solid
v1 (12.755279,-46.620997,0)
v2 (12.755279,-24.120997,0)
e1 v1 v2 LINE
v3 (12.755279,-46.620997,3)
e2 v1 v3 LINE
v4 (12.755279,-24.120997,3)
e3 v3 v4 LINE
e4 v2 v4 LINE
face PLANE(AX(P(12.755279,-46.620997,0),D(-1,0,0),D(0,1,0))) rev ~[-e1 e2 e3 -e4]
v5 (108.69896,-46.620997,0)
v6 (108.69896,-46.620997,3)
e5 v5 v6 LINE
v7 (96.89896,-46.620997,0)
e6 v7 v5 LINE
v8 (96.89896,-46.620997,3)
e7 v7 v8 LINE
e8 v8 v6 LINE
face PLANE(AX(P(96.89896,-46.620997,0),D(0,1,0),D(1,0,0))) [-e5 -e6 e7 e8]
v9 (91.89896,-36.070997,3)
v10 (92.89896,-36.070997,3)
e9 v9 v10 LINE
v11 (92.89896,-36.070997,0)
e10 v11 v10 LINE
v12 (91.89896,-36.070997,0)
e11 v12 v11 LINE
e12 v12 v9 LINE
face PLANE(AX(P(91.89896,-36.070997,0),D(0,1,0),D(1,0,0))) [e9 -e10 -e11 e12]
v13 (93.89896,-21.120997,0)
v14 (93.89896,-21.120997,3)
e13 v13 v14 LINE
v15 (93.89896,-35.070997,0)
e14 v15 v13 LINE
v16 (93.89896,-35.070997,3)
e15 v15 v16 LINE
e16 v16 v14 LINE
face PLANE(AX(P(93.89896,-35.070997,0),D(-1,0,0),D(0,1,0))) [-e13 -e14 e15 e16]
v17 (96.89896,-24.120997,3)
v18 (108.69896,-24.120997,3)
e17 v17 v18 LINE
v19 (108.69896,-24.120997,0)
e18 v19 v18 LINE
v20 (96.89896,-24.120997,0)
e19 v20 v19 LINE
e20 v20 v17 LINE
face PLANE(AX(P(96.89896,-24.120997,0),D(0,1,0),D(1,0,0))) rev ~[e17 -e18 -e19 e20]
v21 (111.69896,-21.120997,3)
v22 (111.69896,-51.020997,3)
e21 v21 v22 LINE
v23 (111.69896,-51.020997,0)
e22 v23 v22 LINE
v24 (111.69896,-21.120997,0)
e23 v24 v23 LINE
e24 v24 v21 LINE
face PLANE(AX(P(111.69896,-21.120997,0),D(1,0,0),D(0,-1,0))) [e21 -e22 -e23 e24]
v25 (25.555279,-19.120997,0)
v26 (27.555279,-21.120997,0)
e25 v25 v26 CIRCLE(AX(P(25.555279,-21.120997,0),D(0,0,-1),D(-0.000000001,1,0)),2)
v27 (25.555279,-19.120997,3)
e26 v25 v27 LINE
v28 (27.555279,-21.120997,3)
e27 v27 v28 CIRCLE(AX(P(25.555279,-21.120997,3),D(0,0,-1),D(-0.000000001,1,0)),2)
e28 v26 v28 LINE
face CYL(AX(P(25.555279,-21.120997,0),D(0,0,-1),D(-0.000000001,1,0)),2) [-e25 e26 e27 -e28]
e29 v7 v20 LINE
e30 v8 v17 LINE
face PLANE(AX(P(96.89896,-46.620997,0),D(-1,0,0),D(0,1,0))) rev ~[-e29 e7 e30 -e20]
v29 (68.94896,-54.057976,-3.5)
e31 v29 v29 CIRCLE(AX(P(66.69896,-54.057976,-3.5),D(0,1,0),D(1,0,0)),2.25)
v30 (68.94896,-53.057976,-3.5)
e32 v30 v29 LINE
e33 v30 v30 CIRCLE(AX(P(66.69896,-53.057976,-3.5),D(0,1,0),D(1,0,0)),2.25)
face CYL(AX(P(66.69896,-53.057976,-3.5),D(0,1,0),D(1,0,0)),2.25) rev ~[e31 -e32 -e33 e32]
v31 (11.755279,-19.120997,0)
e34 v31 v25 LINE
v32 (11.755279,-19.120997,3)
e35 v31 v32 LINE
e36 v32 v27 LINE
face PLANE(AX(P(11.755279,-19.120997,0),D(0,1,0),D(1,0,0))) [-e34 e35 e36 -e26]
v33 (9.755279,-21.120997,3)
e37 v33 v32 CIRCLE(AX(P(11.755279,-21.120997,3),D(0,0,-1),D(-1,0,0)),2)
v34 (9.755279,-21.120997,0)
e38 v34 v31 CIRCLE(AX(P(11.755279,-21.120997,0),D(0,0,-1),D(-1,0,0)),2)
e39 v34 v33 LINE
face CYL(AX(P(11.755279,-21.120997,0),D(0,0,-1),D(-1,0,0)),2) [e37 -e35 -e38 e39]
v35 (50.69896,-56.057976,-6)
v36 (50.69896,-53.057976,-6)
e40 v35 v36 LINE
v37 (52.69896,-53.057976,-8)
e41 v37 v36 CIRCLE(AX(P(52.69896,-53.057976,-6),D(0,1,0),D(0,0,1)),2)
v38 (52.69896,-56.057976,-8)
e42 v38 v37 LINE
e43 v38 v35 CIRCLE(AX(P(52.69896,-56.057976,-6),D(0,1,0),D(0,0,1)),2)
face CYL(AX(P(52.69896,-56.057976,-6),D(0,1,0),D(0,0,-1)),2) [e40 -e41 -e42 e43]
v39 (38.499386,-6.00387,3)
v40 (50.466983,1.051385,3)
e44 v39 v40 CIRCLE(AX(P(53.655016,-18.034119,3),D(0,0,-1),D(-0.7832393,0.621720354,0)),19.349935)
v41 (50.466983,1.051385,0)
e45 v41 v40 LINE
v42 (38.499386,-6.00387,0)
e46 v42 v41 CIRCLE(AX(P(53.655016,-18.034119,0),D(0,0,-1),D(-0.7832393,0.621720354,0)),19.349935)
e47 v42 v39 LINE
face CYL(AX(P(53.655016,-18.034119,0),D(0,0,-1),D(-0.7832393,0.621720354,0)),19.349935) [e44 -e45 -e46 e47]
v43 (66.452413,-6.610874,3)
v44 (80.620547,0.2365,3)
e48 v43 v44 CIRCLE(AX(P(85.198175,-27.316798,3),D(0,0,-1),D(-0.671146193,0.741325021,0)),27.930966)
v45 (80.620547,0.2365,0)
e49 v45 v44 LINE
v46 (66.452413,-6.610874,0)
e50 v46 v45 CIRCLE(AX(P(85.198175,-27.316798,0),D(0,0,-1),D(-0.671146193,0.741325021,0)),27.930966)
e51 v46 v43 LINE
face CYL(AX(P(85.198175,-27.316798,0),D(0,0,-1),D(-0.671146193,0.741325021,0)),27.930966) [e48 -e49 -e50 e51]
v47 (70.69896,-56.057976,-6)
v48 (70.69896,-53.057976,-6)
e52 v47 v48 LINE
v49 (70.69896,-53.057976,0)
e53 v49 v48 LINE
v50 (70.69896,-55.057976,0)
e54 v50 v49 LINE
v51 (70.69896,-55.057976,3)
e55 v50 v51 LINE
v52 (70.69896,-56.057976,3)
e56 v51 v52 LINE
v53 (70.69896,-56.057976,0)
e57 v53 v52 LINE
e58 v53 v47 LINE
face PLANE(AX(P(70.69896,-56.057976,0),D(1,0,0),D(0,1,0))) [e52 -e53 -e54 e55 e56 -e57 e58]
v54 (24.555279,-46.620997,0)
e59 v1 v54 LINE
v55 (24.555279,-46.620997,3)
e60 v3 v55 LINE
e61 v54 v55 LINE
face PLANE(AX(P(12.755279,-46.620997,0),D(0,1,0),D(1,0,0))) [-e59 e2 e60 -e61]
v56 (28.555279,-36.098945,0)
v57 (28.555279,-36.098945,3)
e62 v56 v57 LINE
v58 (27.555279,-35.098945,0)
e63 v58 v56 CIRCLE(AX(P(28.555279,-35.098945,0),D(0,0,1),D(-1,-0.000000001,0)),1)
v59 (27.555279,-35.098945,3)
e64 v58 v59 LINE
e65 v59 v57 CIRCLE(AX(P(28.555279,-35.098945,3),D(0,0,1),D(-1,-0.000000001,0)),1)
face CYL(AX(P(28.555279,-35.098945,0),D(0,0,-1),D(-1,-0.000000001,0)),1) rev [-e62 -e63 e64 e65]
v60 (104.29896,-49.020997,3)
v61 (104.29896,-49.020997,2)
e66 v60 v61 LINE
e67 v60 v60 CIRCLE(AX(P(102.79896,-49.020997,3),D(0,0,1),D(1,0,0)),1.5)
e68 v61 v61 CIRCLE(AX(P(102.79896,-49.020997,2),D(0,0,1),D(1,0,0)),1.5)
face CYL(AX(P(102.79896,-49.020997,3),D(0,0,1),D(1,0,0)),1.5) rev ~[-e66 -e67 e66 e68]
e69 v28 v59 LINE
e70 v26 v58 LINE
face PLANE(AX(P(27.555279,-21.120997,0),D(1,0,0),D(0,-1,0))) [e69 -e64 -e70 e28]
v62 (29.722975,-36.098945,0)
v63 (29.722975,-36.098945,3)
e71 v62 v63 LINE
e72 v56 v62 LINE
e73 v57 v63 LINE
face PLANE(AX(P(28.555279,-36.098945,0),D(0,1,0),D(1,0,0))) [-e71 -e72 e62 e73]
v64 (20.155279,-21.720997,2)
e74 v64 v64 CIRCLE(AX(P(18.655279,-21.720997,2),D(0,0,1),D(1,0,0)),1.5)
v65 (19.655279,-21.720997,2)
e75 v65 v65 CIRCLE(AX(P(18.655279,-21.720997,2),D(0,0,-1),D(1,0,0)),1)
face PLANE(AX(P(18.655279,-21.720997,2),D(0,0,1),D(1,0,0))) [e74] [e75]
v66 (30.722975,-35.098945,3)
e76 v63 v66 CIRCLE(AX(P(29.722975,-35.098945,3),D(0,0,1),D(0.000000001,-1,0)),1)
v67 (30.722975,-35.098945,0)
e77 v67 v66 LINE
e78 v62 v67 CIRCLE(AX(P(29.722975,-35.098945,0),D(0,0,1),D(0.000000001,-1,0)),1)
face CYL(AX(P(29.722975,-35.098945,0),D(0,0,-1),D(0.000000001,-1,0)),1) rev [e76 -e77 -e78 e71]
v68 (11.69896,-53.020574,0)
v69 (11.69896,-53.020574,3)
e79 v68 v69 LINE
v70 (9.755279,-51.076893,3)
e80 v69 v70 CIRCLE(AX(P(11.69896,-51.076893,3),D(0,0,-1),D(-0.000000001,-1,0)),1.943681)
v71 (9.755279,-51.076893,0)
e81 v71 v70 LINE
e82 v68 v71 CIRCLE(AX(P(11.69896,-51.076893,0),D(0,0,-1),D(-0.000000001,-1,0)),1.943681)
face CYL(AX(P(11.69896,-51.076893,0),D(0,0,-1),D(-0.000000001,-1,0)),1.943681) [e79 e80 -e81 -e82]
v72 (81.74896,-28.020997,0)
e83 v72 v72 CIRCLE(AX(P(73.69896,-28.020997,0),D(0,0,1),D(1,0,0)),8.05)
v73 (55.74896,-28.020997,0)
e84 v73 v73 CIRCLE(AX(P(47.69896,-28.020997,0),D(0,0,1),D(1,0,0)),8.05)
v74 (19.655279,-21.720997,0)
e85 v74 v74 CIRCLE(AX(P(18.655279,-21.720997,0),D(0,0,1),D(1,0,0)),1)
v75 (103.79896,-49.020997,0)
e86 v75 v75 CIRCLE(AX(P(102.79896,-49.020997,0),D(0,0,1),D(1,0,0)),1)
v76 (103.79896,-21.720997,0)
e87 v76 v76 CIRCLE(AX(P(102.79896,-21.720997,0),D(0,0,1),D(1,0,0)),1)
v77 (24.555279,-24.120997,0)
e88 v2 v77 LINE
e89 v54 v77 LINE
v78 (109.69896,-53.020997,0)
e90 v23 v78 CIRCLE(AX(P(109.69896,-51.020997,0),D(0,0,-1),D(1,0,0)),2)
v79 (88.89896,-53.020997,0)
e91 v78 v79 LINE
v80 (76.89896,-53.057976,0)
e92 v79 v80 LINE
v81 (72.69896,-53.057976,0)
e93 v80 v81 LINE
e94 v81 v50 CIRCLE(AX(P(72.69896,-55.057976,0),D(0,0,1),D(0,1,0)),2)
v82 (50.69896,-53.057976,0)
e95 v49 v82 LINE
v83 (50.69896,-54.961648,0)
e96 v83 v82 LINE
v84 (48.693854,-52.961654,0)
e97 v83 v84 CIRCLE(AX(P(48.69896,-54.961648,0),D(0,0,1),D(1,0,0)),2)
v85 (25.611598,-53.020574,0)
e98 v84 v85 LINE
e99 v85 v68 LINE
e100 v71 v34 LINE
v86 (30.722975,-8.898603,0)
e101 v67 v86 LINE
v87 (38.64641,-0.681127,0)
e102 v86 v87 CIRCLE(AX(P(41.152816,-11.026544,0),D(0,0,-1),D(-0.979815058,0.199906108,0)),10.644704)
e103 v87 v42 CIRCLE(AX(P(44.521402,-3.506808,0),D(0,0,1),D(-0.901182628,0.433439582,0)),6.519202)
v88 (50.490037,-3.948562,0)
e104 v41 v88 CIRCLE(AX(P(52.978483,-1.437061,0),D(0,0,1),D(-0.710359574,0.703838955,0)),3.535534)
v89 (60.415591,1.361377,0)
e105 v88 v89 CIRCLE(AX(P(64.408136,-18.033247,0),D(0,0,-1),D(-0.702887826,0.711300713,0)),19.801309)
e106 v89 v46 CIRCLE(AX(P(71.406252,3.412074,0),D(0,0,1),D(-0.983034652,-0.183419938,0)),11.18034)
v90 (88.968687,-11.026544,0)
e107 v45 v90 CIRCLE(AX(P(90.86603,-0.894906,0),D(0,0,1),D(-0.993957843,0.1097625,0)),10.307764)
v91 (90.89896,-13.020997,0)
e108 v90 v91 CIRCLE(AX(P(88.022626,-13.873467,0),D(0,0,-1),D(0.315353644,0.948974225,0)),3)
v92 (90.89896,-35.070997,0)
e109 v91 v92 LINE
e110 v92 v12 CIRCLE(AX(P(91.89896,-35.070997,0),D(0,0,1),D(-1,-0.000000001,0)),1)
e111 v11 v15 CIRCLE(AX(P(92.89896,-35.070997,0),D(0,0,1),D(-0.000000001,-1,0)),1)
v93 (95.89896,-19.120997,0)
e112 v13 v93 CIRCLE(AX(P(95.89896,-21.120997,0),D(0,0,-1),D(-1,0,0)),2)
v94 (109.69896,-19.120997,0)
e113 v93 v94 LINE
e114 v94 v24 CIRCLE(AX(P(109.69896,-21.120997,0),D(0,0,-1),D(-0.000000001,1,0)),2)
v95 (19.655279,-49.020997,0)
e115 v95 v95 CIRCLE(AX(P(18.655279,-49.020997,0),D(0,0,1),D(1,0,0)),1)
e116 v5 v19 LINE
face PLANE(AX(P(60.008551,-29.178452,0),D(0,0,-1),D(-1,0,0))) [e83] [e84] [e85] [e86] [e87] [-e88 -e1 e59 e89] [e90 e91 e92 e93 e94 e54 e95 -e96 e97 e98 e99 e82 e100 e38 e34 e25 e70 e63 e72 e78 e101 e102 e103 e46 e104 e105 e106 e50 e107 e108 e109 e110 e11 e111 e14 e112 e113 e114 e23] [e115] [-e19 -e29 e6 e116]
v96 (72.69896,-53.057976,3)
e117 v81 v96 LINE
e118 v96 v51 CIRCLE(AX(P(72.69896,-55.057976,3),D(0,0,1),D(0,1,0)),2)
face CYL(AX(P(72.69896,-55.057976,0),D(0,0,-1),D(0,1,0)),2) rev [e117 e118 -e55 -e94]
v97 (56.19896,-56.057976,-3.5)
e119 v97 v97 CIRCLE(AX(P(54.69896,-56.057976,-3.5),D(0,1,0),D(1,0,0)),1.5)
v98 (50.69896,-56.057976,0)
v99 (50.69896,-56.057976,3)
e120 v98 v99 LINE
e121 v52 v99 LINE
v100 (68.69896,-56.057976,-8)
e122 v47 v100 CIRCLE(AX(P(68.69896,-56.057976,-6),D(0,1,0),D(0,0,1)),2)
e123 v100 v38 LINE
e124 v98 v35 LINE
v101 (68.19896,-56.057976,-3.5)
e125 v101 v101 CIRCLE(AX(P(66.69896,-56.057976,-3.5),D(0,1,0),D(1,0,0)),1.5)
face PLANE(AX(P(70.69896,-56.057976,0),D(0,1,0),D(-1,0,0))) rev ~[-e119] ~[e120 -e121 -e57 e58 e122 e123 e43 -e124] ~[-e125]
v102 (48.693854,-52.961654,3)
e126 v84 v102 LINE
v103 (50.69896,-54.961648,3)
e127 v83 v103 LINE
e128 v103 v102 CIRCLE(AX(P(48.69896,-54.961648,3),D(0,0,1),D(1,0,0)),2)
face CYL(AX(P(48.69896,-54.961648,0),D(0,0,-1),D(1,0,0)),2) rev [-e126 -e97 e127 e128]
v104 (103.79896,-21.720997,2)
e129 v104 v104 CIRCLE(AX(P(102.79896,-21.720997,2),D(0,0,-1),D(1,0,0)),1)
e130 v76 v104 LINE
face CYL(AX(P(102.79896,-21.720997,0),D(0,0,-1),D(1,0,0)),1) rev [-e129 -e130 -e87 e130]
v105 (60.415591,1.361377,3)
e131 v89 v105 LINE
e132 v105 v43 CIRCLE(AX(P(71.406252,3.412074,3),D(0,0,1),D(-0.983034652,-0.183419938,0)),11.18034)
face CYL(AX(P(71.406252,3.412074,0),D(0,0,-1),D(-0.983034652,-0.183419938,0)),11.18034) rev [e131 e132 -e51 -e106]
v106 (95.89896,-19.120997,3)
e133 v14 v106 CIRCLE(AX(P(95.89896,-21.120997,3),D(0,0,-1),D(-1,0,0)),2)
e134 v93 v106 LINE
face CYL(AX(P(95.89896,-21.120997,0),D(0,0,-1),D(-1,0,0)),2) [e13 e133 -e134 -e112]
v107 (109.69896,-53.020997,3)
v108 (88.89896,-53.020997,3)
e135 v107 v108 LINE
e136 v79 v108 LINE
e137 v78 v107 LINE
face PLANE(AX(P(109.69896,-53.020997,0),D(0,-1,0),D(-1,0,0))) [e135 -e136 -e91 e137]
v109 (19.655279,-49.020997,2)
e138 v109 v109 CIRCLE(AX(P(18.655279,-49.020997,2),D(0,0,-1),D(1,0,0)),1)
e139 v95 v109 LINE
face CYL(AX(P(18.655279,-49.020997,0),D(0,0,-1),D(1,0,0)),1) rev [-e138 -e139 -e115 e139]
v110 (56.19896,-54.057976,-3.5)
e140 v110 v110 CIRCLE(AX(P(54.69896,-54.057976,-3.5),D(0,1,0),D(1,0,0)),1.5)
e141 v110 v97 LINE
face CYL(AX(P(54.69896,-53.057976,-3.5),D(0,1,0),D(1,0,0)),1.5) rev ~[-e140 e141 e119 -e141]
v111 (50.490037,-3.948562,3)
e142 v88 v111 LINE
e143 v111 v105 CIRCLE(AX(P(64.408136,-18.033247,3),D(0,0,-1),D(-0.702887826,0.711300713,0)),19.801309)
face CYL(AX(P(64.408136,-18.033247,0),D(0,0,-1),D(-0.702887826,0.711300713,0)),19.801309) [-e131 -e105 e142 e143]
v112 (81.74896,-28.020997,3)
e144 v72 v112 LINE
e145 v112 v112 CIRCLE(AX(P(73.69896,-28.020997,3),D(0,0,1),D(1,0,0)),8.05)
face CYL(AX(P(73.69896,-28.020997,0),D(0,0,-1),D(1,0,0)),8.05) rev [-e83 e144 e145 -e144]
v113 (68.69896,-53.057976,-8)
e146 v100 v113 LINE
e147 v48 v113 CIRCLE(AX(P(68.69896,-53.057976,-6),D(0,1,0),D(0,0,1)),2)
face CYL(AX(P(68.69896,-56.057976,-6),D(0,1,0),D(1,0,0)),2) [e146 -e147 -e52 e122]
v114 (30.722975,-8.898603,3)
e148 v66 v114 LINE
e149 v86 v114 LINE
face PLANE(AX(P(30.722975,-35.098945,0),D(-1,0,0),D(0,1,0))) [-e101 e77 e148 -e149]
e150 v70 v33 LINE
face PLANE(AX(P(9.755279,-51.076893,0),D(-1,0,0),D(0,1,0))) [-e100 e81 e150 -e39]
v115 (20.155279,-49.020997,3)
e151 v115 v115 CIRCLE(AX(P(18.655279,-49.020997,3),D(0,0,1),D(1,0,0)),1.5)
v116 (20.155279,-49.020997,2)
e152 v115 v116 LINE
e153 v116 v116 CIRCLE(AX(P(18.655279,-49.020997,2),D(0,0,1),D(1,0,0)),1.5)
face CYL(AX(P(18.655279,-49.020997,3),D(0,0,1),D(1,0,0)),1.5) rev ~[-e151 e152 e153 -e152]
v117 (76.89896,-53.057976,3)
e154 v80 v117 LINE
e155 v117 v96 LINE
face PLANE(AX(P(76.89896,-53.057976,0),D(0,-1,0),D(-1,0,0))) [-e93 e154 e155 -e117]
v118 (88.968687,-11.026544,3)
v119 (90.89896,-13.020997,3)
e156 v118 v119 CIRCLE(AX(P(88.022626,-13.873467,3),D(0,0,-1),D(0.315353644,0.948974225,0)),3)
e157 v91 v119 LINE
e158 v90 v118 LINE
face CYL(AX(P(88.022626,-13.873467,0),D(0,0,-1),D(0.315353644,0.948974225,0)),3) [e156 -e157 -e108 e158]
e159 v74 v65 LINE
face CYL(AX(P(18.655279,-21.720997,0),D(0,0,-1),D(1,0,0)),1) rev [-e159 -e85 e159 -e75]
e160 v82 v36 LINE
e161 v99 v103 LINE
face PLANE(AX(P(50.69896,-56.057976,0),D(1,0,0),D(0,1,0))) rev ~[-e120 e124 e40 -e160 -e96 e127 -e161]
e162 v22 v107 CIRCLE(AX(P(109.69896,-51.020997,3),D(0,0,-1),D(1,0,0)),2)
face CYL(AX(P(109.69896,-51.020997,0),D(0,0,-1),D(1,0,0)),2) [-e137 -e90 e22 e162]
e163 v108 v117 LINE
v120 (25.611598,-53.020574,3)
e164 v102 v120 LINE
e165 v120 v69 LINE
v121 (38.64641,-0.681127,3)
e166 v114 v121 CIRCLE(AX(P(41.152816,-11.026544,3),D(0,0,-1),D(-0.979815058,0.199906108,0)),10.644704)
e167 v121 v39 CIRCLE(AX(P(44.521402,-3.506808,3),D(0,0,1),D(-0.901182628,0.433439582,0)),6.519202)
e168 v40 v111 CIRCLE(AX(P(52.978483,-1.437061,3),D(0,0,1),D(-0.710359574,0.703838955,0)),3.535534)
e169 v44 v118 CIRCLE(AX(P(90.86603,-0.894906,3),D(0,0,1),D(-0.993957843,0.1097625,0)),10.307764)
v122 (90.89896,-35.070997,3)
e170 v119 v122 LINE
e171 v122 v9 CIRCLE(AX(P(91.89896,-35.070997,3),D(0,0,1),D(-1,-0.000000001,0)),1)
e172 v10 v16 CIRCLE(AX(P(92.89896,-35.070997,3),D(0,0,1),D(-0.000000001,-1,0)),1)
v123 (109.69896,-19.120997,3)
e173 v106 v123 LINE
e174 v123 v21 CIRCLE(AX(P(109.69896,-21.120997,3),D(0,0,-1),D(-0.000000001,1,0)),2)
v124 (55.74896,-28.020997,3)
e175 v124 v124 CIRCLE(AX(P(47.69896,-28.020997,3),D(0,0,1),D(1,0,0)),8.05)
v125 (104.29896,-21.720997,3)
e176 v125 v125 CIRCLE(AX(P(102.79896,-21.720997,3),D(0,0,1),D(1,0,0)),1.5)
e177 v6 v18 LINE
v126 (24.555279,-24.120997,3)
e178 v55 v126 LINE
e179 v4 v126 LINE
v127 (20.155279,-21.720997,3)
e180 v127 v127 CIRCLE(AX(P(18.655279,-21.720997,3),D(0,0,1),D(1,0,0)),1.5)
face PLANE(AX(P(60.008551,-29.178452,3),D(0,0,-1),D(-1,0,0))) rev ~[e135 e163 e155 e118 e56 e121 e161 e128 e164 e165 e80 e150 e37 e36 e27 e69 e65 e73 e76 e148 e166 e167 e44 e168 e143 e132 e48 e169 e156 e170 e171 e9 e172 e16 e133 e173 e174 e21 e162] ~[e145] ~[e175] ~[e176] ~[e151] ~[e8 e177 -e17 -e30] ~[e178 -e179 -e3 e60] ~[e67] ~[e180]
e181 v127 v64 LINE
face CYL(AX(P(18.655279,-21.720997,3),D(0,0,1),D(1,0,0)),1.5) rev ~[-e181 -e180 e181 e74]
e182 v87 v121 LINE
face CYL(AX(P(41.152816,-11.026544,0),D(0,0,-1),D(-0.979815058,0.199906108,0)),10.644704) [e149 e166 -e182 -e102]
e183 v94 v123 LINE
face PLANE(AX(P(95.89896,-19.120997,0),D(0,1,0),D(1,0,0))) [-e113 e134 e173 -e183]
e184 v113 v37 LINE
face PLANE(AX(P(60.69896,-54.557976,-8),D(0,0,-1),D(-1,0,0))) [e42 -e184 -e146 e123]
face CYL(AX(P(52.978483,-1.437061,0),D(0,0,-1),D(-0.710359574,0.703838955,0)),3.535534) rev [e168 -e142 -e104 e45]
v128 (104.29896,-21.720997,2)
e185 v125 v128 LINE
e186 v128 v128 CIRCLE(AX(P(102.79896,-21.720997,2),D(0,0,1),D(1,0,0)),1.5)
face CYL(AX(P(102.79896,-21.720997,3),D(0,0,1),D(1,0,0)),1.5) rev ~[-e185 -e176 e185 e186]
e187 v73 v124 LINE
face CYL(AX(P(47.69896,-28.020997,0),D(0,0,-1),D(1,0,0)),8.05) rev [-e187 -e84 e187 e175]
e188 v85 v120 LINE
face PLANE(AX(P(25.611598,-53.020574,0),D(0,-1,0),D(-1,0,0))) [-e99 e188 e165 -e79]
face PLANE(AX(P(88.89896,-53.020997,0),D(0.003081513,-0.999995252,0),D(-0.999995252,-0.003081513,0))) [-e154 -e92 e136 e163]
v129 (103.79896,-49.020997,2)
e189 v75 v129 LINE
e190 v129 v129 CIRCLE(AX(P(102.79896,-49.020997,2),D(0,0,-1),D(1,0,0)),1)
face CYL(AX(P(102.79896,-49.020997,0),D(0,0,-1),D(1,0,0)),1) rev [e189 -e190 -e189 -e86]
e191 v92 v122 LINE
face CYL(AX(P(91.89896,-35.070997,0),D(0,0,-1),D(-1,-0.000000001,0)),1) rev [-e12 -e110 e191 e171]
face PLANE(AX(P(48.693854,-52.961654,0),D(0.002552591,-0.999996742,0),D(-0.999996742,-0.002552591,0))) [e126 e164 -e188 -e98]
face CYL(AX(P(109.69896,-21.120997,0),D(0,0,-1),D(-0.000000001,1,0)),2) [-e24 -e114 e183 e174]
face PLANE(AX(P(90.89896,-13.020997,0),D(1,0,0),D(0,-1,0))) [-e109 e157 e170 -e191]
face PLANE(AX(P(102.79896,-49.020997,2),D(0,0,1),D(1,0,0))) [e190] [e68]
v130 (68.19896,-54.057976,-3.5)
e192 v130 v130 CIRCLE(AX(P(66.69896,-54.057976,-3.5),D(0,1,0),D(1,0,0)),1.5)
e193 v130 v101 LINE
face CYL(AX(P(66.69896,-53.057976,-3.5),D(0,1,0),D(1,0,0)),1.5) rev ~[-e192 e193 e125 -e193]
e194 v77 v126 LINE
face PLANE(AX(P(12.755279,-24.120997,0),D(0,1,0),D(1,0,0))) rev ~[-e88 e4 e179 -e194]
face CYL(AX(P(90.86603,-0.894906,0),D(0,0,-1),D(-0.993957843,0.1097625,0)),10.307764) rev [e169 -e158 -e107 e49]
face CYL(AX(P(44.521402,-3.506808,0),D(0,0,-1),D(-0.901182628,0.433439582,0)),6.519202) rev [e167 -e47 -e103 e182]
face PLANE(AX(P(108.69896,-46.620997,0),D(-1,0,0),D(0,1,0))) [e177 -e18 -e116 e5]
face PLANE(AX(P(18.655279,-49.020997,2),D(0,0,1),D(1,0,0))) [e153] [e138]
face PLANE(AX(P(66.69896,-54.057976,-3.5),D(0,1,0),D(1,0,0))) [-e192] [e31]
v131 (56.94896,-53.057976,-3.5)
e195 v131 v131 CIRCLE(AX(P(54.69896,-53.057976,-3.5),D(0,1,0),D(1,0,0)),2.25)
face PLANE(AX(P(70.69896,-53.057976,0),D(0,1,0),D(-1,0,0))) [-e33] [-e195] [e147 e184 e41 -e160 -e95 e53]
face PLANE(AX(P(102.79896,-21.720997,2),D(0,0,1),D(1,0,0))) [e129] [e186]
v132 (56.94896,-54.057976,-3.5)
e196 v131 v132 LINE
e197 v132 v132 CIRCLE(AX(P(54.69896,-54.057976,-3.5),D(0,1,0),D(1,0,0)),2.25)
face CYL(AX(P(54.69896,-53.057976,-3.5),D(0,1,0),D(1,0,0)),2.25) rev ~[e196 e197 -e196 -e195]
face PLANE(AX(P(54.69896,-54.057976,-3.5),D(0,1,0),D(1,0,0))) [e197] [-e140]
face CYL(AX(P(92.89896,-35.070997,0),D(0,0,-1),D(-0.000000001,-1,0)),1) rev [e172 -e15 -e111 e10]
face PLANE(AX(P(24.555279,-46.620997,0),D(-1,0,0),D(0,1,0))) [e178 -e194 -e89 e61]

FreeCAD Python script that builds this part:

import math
import FreeCAD as App
import Part
import Sketcher
Q = App.Units.Quantity


def edges_at(feature, points):
    """Names of the edges that pass closest to the given points."""
    edges = feature.Shape.Edges
    near = lambda p: min(range(len(edges)), key=lambda i: edges[i].distToShape(Part.Vertex(*p))[0])
    return sorted({f"Edge{near(p) + 1}" for p in points})


def add_polygon(sketch, points):
    """Adds a closed chain of lines whose ends are joined by coincident constraints."""
    first, n = sketch.GeometryCount, len(points)
    for a, b in zip(points, points[1:] + points[:1]):
        sketch.addGeometry(Part.LineSegment(App.Vector(*a, 0), App.Vector(*b, 0)), False)
    for i in range(n):
        sketch.addConstraint(Sketcher.Constraint("Coincident", first + i, 2, first + (i + 1) % n, 1))

doc = App.newDocument("Part")
body = doc.addObject("PartDesign::Body", "Body")

# Sketch on XY plane
sketch1 = body.newObject("Sketcher::SketchObject", "Sketch")
sketch1.AttachmentSupport = (doc.getObject("XY_Plane"), [""])
sketch1.MapMode = "FlatFace"
sketch1.addGeometry(Part.LineSegment(App.Vector(29.7, -36.1, 0), App.Vector(28.6, -36.1, 0)), False)  # 0
sketch1.addGeometry(Part.ArcOfCircle(Part.Circle(App.Vector(28.6, -35.1, 0), App.Vector(0, 0, 1), 1), math.radians(-180), math.radians(-90)), False)  # 1
sketch1.addGeometry(Part.LineSegment(App.Vector(27.6, -35.1, 0), App.Vector(27.6, -21.1, 0)), False)  # 2
sketch1.addGeometry(Part.ArcOfCircle(Part.Circle(App.Vector(25.6, -21.1, 0), App.Vector(0, 0, 1), 2), math.radians(0), math.radians(90)), False)  # 3
sketch1.addGeometry(Part.LineSegment(App.Vector(25.6, -19.1, 0), App.Vector(11.8, -19.1, 0)), False)  # 4
sketch1.addGeometry(Part.ArcOfCircle(Part.Circle(App.Vector(11.8, -21.1, 0), App.Vector(0, 0, 1), 2), math.radians(90), math.radians(180)), False)  # 5
sketch1.addGeometry(Part.LineSegment(App.Vector(9.8, -21.1, 0), App.Vector(9.8, -51.1, 0)), False)  # 6
sketch1.addGeometry(Part.ArcOfCircle(Part.Circle(App.Vector(11.7, -51.1, 0), App.Vector(0, 0, 1), 1.9), math.radians(-180), math.radians(-90)), False)  # 7
sketch1.addGeometry(Part.LineSegment(App.Vector(11.7, -53, 0), App.Vector(25.6, -53, 0)), False)  # 8
sketch1.addGeometry(Part.LineSegment(App.Vector(25.6, -53, 0), App.Vector(48.7, -53, 0)), False)  # 9
sketch1.addGeometry(Part.ArcOfCircle(Part.Circle(App.Vector(48.7, -55, 0), App.Vector(0, 0, 1), 2), math.radians(0), math.radians(90)), False)  # 10
sketch1.addGeometry(Part.LineSegment(App.Vector(50.7, -55, 0), App.Vector(50.7, -56.1, 0)), False)  # 11
sketch1.addGeometry(Part.LineSegment(App.Vector(50.7, -56.1, 0), App.Vector(70.7, -56.1, 0)), False)  # 12
sketch1.addGeometry(Part.LineSegment(App.Vector(70.7, -56.1, 0), App.Vector(70.7, -55.1, 0)), False)  # 13
sketch1.addGeometry(Part.ArcOfCircle(Part.Circle(App.Vector(72.7, -55.1, 0), App.Vector(0, 0, 1), 2), math.radians(90), math.radians(180)), False)  # 14
sketch1.addGeometry(Part.LineSegment(App.Vector(72.7, -53.1, 0), App.Vector(76.9, -53.1, 0)), False)  # 15
sketch1.addGeometry(Part.LineSegment(App.Vector(76.9, -53.1, 0), App.Vector(88.9, -53, 0)), False)  # 16
sketch1.addGeometry(Part.LineSegment(App.Vector(88.9, -53, 0), App.Vector(109.7, -53, 0)), False)  # 17
sketch1.addGeometry(Part.ArcOfCircle(Part.Circle(App.Vector(109.7, -51, 0), App.Vector(0, 0, 1), 2), math.radians(-90), math.radians(0)), False)  # 18
sketch1.addGeometry(Part.LineSegment(App.Vector(111.7, -51, 0), App.Vector(111.7, -21.1, 0)), False)  # 19
sketch1.addGeometry(Part.ArcOfCircle(Part.Circle(App.Vector(109.7, -21.1, 0), App.Vector(0, 0, 1), 2), math.radians(0), math.radians(90)), False)  # 20
sketch1.addGeometry(Part.LineSegment(App.Vector(109.7, -19.1, 0), App.Vector(95.9, -19.1, 0)), False)  # 21
sketch1.addGeometry(Part.ArcOfCircle(Part.Circle(App.Vector(95.9, -21.1, 0), App.Vector(0, 0, 1), 2), math.radians(90), math.radians(180)), False)  # 22
sketch1.addGeometry(Part.LineSegment(App.Vector(93.9, -21.1, 0), App.Vector(93.9, -35.1, 0)), False)  # 23
sketch1.addGeometry(Part.ArcOfCircle(Part.Circle(App.Vector(92.9, -35.1, 0), App.Vector(0, 0, 1), 1), math.radians(-90), math.radians(0)), False)  # 24
sketch1.addGeometry(Part.LineSegment(App.Vector(92.9, -36.1, 0), App.Vector(91.9, -36.1, 0)), False)  # 25
sketch1.addGeometry(Part.ArcOfCircle(Part.Circle(App.Vector(91.9, -35.1, 0), App.Vector(0, 0, 1), 1), math.radians(-180), math.radians(-90)), False)  # 26
sketch1.addGeometry(Part.LineSegment(App.Vector(90.9, -35.1, 0), App.Vector(90.9, -13, 0)), False)  # 27
sketch1.addGeometry(Part.ArcOfCircle(Part.Circle(App.Vector(88, -13.9, 0), App.Vector(0, 0, 1), 3), math.radians(17), math.radians(72)), False)  # 28
sketch1.addGeometry(Part.ArcOfCircle(Part.Circle(App.Vector(90.9, -0.9, 0), App.Vector(0, 0, 1), 10.3), math.radians(174), math.radians(259)), False)  # 29
sketch1.addGeometry(Part.ArcOfCircle(Part.Circle(App.Vector(85.2, -27.3, 0), App.Vector(0, 0, 1), 27.9), math.radians(99), math.radians(132)), False)  # 30
sketch1.addGeometry(Part.ArcOfCircle(Part.Circle(App.Vector(71.4, 3.4, 0), App.Vector(0, 0, 1), 11.2), math.radians(-169), math.radians(-116)), False)  # 31
sketch1.addGeometry(Part.ArcOfCircle(Part.Circle(App.Vector(64.4, -18, 0), App.Vector(0, 0, 1), 19.8), math.radians(102), math.radians(135)), False)  # 32
sketch1.addGeometry(Part.ArcOfCircle(Part.Circle(App.Vector(53, -1.4, 0), App.Vector(0, 0, 1), 3.5), math.radians(135), math.radians(225)), False)  # 33
sketch1.addGeometry(Part.ArcOfCircle(Part.Circle(App.Vector(53.7, -18, 0), App.Vector(0, 0, 1), 19.3), math.radians(99), math.radians(142)), False)  # 34
sketch1.addGeometry(Part.ArcOfCircle(Part.Circle(App.Vector(44.5, -3.5, 0), App.Vector(0, 0, 1), 6.5), math.radians(154), math.radians(203)), False)  # 35
sketch1.addGeometry(Part.ArcOfCircle(Part.Circle(App.Vector(41.2, -11, 0), App.Vector(0, 0, 1), 10.6), math.radians(104), math.radians(168)), False)  # 36
sketch1.addGeometry(Part.LineSegment(App.Vector(30.7, -8.9, 0), App.Vector(30.7, -35.1, 0)), False)  # 37
sketch1.addGeometry(Part.ArcOfCircle(Part.Circle(App.Vector(29.7, -35.1, 0), App.Vector(0, 0, 1), 1), math.radians(-90), math.radians(0)), False)  # 38
sketch1.addGeometry(Part.Circle(App.Vector(102.8, -49, 0), App.Vector(0, 0, 1), 1), False)  # 39
add_polygon(sketch1, [(96.9, -46.6), (96.9, -24.1), (108.7, -24.1), (108.7, -46.6)])  # lines 40-43
sketch1.addGeometry(Part.Circle(App.Vector(18.7, -49, 0), App.Vector(0, 0, 1), 1), False)  # 44
add_polygon(sketch1, [(12.8, -46.6), (12.8, -24.1), (24.6, -24.1), (24.6, -46.6)])  # lines 45-48
sketch1.addGeometry(Part.Circle(App.Vector(73.7, -28, 0), App.Vector(0, 0, 1), 8.1), False)  # 49
sketch1.addGeometry(Part.Circle(App.Vector(102.8, -21.7, 0), App.Vector(0, 0, 1), 1), False)  # 50
sketch1.addGeometry(Part.Circle(App.Vector(47.7, -28, 0), App.Vector(0, 0, 1), 8.1), False)  # 51
sketch1.addGeometry(Part.Circle(App.Vector(18.7, -21.7, 0), App.Vector(0, 0, 1), 1), False)  # 52
sketch1.addConstraint(Sketcher.Constraint("Tangent", 0, 2, 1, 2))
sketch1.addConstraint(Sketcher.Constraint("Tangent", 1, 1, 2, 1))
sketch1.addConstraint(Sketcher.Constraint("Tangent", 2, 2, 3, 1))
sketch1.addConstraint(Sketcher.Constraint("Tangent", 3, 2, 4, 1))
sketch1.addConstraint(Sketcher.Constraint("Tangent", 4, 2, 5, 1))
sketch1.addConstraint(Sketcher.Constraint("Tangent", 5, 2, 6, 1))
sketch1.addConstraint(Sketcher.Constraint("Tangent", 6, 2, 7, 1))
sketch1.addConstraint(Sketcher.Constraint("Tangent", 7, 2, 8, 1))
sketch1.addConstraint(Sketcher.Constraint("Coincident", 8, 2, 9, 1))
sketch1.addConstraint(Sketcher.Constraint("Tangent", 9, 2, 10, 2))
sketch1.addConstraint(Sketcher.Constraint("Tangent", 10, 1, 11, 1))
sketch1.addConstraint(Sketcher.Constraint("Coincident", 11, 2, 12, 1))
sketch1.addConstraint(Sketcher.Constraint("Coincident", 12, 2, 13, 1))
sketch1.addConstraint(Sketcher.Constraint("Tangent", 13, 2, 14, 2))
sketch1.addConstraint(Sketcher.Constraint("Tangent", 14, 1, 15, 1))
sketch1.addConstraint(Sketcher.Constraint("Coincident", 15, 2, 16, 1))
sketch1.addConstraint(Sketcher.Constraint("Coincident", 16, 2, 17, 1))
sketch1.addConstraint(Sketcher.Constraint("Tangent", 17, 2, 18, 1))
sketch1.addConstraint(Sketcher.Constraint("Tangent", 18, 2, 19, 1))
sketch1.addConstraint(Sketcher.Constraint("Tangent", 19, 2, 20, 1))
sketch1.addConstraint(Sketcher.Constraint("Tangent", 20, 2, 21, 1))
sketch1.addConstraint(Sketcher.Constraint("Tangent", 21, 2, 22, 1))
sketch1.addConstraint(Sketcher.Constraint("Tangent", 22, 2, 23, 1))
sketch1.addConstraint(Sketcher.Constraint("Tangent", 23, 2, 24, 2))
sketch1.addConstraint(Sketcher.Constraint("Tangent", 24, 1, 25, 1))
sketch1.addConstraint(Sketcher.Constraint("Tangent", 25, 2, 26, 2))
sketch1.addConstraint(Sketcher.Constraint("Tangent", 26, 1, 27, 1))
sketch1.addConstraint(Sketcher.Constraint("Coincident", 27, 2, 28, 1))
sketch1.addConstraint(Sketcher.Constraint("Coincident", 28, 2, 29, 2))
sketch1.addConstraint(Sketcher.Constraint("Coincident", 29, 1, 30, 1))
sketch1.addConstraint(Sketcher.Constraint("Coincident", 30, 2, 31, 2))
sketch1.addConstraint(Sketcher.Constraint("Coincident", 31, 1, 32, 1))
sketch1.addConstraint(Sketcher.Constraint("Coincident", 32, 2, 33, 2))
sketch1.addConstraint(Sketcher.Constraint("Coincident", 33, 1, 34, 1))
sketch1.addConstraint(Sketcher.Constraint("Coincident", 34, 2, 35, 2))
sketch1.addConstraint(Sketcher.Constraint("Coincident", 35, 1, 36, 1))
sketch1.addConstraint(Sketcher.Constraint("Coincident", 36, 2, 37, 1))
sketch1.addConstraint(Sketcher.Constraint("Tangent", 37, 2, 38, 2))
sketch1.addConstraint(Sketcher.Constraint("Tangent", 38, 1, 0, 1))
sketch1.addConstraint(Sketcher.Constraint("Horizontal", 0))
sketch1.addConstraint(Sketcher.Constraint("Vertical", 2))
sketch1.addConstraint(Sketcher.Constraint("Horizontal", 4))
sketch1.addConstraint(Sketcher.Constraint("Vertical", 6))
sketch1.addConstraint(Sketcher.Constraint("Horizontal", 8))
sketch1.addConstraint(Sketcher.Constraint("Vertical", 11))
sketch1.addConstraint(Sketcher.Constraint("Horizontal", 12))
sketch1.addConstraint(Sketcher.Constraint("Vertical", 13))
sketch1.addConstraint(Sketcher.Constraint("Horizontal", 15))
sketch1.addConstraint(Sketcher.Constraint("Horizontal", 17))
sketch1.addConstraint(Sketcher.Constraint("Vertical", 19))
sketch1.addConstraint(Sketcher.Constraint("Horizontal", 21))
sketch1.addConstraint(Sketcher.Constraint("Vertical", 23))
sketch1.addConstraint(Sketcher.Constraint("Horizontal", 25))
sketch1.addConstraint(Sketcher.Constraint("Vertical", 27))
sketch1.addConstraint(Sketcher.Constraint("Vertical", 37))
sketch1.addConstraint(Sketcher.Constraint("Vertical", 40))
sketch1.addConstraint(Sketcher.Constraint("Horizontal", 41))
sketch1.addConstraint(Sketcher.Constraint("Vertical", 42))
sketch1.addConstraint(Sketcher.Constraint("Horizontal", 43))
sketch1.addConstraint(Sketcher.Constraint("Vertical", 45))
sketch1.addConstraint(Sketcher.Constraint("Horizontal", 46))
sketch1.addConstraint(Sketcher.Constraint("Vertical", 47))
sketch1.addConstraint(Sketcher.Constraint("Horizontal", 48))
sketch1.addConstraint(Sketcher.Constraint("Equal", 3, 5))
sketch1.addConstraint(Sketcher.Constraint("Equal", 5, 10))
sketch1.addConstraint(Sketcher.Constraint("Equal", 10, 14))
sketch1.addConstraint(Sketcher.Constraint("Equal", 14, 18))
sketch1.addConstraint(Sketcher.Constraint("Equal", 18, 20))
sketch1.addConstraint(Sketcher.Constraint("Equal", 20, 22))
sketch1.addConstraint(Sketcher.Constraint("Equal", 1, 24))
sketch1.addConstraint(Sketcher.Constraint("Equal", 24, 26))
sketch1.addConstraint(Sketcher.Constraint("Equal", 26, 38))
sketch1.addConstraint(Sketcher.Constraint("Equal", 38, 39))
sketch1.addConstraint(Sketcher.Constraint("Equal", 39, 44))
sketch1.addConstraint(Sketcher.Constraint("Equal", 44, 50))
sketch1.addConstraint(Sketcher.Constraint("Equal", 49, 51))
sketch1.addConstraint(Sketcher.Constraint("Equal", 50, 52))
sketch1.addConstraint(Sketcher.Constraint("Horizontal", 5, 3, 20, 3))
sketch1.addConstraint(Sketcher.Constraint("Horizontal", 39, 3, 44, 3))
sketch1.addConstraint(Sketcher.Constraint("Horizontal", 49, 3, 51, 3))
sketch1.addConstraint(Sketcher.Constraint("Horizontal", 50, 3, 52, 3))
sketch1.addConstraint(Sketcher.Constraint("Horizontal", 36, 3, 28, 2))
sketch1.addConstraint(Sketcher.Constraint("Horizontal", 41, 2, 45, 2))
sketch1.addConstraint(Sketcher.Constraint("Horizontal", 43, 2, 47, 2))
sketch1.addConstraint(Sketcher.Constraint("Vertical", 39, 3, 50, 3))
sketch1.addConstraint(Sketcher.Constraint("Vertical", 44, 3, 52, 3))
sketch1.addConstraint(Sketcher.Constraint("Equal", 4, 21))
sketch1.addConstraint(Sketcher.Constraint("Equal", 43, 46))
sketch1.addConstraint(Sketcher.Constraint("Equal", 25, 13))
sketch1.addConstraint(Sketcher.Constraint("Diameter", 39, Q("2 mm")))
sketch1.addConstraint(Sketcher.Constraint("Radius", 3, Q("2 mm")))
sketch1.addConstraint(Sketcher.Constraint("Radius", 28, Q("3 mm")))
sketch1.addConstraint(Sketcher.Constraint("Diameter", 49, Q("16.1 mm")))
sketch1.addConstraint(Sketcher.Constraint("DistanceX", 12, 1, 12, 2, Q("20 mm")))
sketch1.addConstraint(Sketcher.Constraint("DistanceX", 25, 2, 25, 1, Q("1 mm")))
sketch1.addConstraint(Sketcher.Constraint("DistanceX", 4, 2, 4, 1, Q("13.8 mm")))
sketch1.addConstraint(Sketcher.Constraint("DistanceX", 15, 1, 15, 2, Q("4.2 mm")))
sketch1.addConstraint(Sketcher.Constraint("DistanceX", 17, 1, 17, 2, Q("20.8 mm")))
sketch1.addConstraint(Sketcher.Constraint("DistanceX", 41, 1, 41, 2, Q("11.8 mm")))
sketch1.addConstraint(Sketcher.Constraint("DistanceY", 19, 1, 19, 2, Q("29.9 mm")))
sketch1.addConstraint(Sketcher.Constraint("DistanceY", 40, 1, 40, 2, Q("22.5 mm")))
sketch1.addConstraint(Sketcher.Constraint("DistanceY", 23, 2, 23, 1, Q("13.95 mm")))
sketch1.addConstraint(Sketcher.Constraint("DistanceY", 27, 1, 27, 2, Q("22.05 mm")))
sketch1.addConstraint(Sketcher.Constraint("Radius", 7, Q("1.943681 mm")))
sketch1.addConstraint(Sketcher.Constraint("Radius", 31, Q("11.18034 mm")))
sketch1.addConstraint(Sketcher.Constraint("Radius", 32, Q("19.801309 mm")))
sketch1.addConstraint(Sketcher.Constraint("Radius", 29, Q("10.307764 mm")))
sketch1.addConstraint(Sketcher.Constraint("Radius", 30, Q("27.930966 mm")))
sketch1.addConstraint(Sketcher.Constraint("Radius", 33, Q("3.535534 mm")))
sketch1.addConstraint(Sketcher.Constraint("Radius", 34, Q("19.349935 mm")))
sketch1.addConstraint(Sketcher.Constraint("Radius", 35, Q("6.519202 mm")))
sketch1.addConstraint(Sketcher.Constraint("Radius", 36, Q("10.644704 mm")))
sketch1.addConstraint(Sketcher.Constraint("DistanceX", 8, 1, 8, 2, Q("13.912639 mm")))
sketch1.addConstraint(Sketcher.Constraint("DistanceY", 11, 2, 11, 1, Q("1.096328 mm")))
sketch1.addConstraint(Sketcher.Constraint("DistanceY", 30, 3, -1, 1, Q("27.316798 mm")))
sketch1.addConstraint(Sketcher.Constraint("DistanceX", -1, 1, 8, 2, Q("25.611598 mm")))
sketch1.addConstraint(Sketcher.Constraint("DistanceY", -1, 1, 29, 1, Q("0.2365 mm")))
sketch1.addConstraint(Sketcher.Constraint("Distance", 9, Q("23.082331 mm")))
sketch1.addConstraint(Sketcher.Constraint("DistanceX", 0, 2, 0, 1, Q("1.167696 mm")))
sketch1.addConstraint(Sketcher.Constraint("DistanceY", 2, 1, 2, 2, Q("13.977948 mm")))
sketch1.addConstraint(Sketcher.Constraint("DistanceY", 6, 2, 6, 1, Q("29.955896 mm")))
sketch1.addConstraint(Sketcher.Constraint("DistanceY", 37, 2, 37, 1, Q("26.200342 mm")))
sketch1.addConstraint(Sketcher.Constraint("DistanceX", -1, 1, 10, 3, Q("48.69896 mm")))
sketch1.addConstraint(Sketcher.Constraint("DistanceX", -1, 1, 18, 3, Q("109.69896 mm")))
sketch1.addConstraint(Sketcher.Constraint("DistanceX", -1, 1, 29, 3, Q("90.86603 mm")))
sketch1.addConstraint(Sketcher.Constraint("DistanceY", 33, 3, -1, 1, Q("1.437061 mm")))
sketch1.addConstraint(Sketcher.Constraint("DistanceY", 34, 3, -1, 1, Q("18.034119 mm")))
sketch1.addConstraint(Sketcher.Constraint("DistanceX", -1, 1, 39, 3, Q("102.79896 mm")))
sketch1.addConstraint(Sketcher.Constraint("DistanceX", -1, 1, 44, 3, Q("18.655279 mm")))
sketch1.addConstraint(Sketcher.Constraint("DistanceX", -1, 1, 49, 3, Q("73.69896 mm")))
sketch1.addConstraint(Sketcher.Constraint("DistanceX", -1, 1, 51, 3, Q("47.69896 mm")))
sketch1.addConstraint(Sketcher.Constraint("DistanceX", -1, 1, 31, 1, Q("60.415591 mm")))
sketch1.addConstraint(Sketcher.Constraint("DistanceY", 32, 2, -1, 1, Q("3.948562 mm")))
sketch1.addConstraint(Sketcher.Constraint("DistanceY", 34, 2, -1, 1, Q("6.00387 mm")))
sketch1.addConstraint(Sketcher.Constraint("DistanceX", -1, 1, 35, 1, Q("38.64641 mm")))
sketch1.addConstraint(Sketcher.Constraint("DistanceX", -1, 1, 40, 2, Q("96.89896 mm")))
sketch1.addConstraint(Sketcher.Constraint("DistanceX", -1, 1, 45, 2, Q("12.755279 mm")))
sketch1.addConstraint(Sketcher.Constraint("DistanceY", 1, 3, -1, 1, Q("35.098945 mm")))
sketch1.addConstraint(Sketcher.Constraint("DistanceX", -1, 1, 28, 3, Q("88.022626 mm")))
sketch1.addConstraint(Sketcher.Constraint("DistanceY", 29, 3, -1, 1, Q("0.894906 mm")))
sketch1.addConstraint(Sketcher.Constraint("DistanceX", -1, 1, 31, 3, Q("71.406252 mm")))
sketch1.addConstraint(Sketcher.Constraint("DistanceY", -1, 1, 31, 3, Q("3.412074 mm")))
sketch1.addConstraint(Sketcher.Constraint("DistanceX", -1, 1, 32, 3, Q("64.408136 mm")))
sketch1.addConstraint(Sketcher.Constraint("DistanceX", -1, 1, 34, 3, Q("53.655016 mm")))
sketch1.addConstraint(Sketcher.Constraint("DistanceY", 39, 3, -1, 1, Q("49.020997 mm")))
sketch1.addConstraint(Sketcher.Constraint("DistanceY", 49, 3, -1, 1, Q("28.020997 mm")))
sketch1.addConstraint(Sketcher.Constraint("DistanceY", 50, 3, -1, 1, Q("21.720997 mm")))
sketch1.addConstraint(Sketcher.Constraint("DistanceY", 40, 2, -1, 1, Q("24.120997 mm")))
pad1 = body.newObject("PartDesign::Pad", "Pad")
pad1.Profile = sketch1
pad1.Length = 3

# Sketch on XY plane
sketch2 = body.newObject("Sketcher::SketchObject", "Sketch001")
sketch2.AttachmentSupport = (doc.getObject("XY_Plane"), [""])
sketch2.MapMode = "FlatFace"
add_polygon(sketch2, [(70.7, -53.1), (70.7, -56.1), (50.7, -56.1), (50.7, -53.1)])  # lines 0-3
sketch2.addConstraint(Sketcher.Constraint("Vertical", 0))
sketch2.addConstraint(Sketcher.Constraint("Horizontal", 1))
sketch2.addConstraint(Sketcher.Constraint("Vertical", 2))
sketch2.addConstraint(Sketcher.Constraint("Horizontal", 3))
sketch2.addConstraint(Sketcher.Constraint("DistanceX", 1, 2, 1, 1, Q("20 mm")))
sketch2.addConstraint(Sketcher.Constraint("DistanceY", 0, 2, 0, 1, Q("3 mm")))
sketch2.addConstraint(Sketcher.Constraint("DistanceX", -1, 1, 0, 2, Q("70.69896 mm")))
sketch2.addConstraint(Sketcher.Constraint("DistanceY", 0, 2, -1, 1, Q("56.057976 mm")))
pad2 = body.newObject("PartDesign::Pad", "Pad001")
pad2.Profile = sketch2
pad2.Length = 8
pad2.Reversed = True

# Sketch on XZ plane
sketch3 = body.newObject("Sketcher::SketchObject", "Sketch002")
sketch3.AttachmentSupport = (doc.getObject("XZ_Plane"), [""])
sketch3.MapMode = "FlatFace"
sketch3.AttachmentOffset = App.Placement(App.Vector(0, 0, 53.057976), App.Rotation())
sketch3.addGeometry(Part.Circle(App.Vector(66.7, -3.5, 0), App.Vector(0, 0, 1), 1.5), False)
sketch3.addGeometry(Part.Circle(App.Vector(54.7, -3.5, 0), App.Vector(0, 0, 1), 1.5), False)
sketch3.addConstraint(Sketcher.Constraint("Equal", 0, 1))
sketch3.addConstraint(Sketcher.Constraint("Horizontal", 0, 3, 1, 3))
sketch3.addConstraint(Sketcher.Constraint("Diameter", 0, Q("3 mm")))
sketch3.addConstraint(Sketcher.Constraint("DistanceX", 1, 3, 0, 3, Q("12 mm")))
sketch3.addConstraint(Sketcher.Constraint("DistanceY", 0, 3, -1, 1, Q("3.5 mm")))
sketch3.addConstraint(Sketcher.Constraint("DistanceX", -1, 1, 0, 3, Q("66.69896 mm")))
pocket1 = body.newObject("PartDesign::Pocket", "Pocket")
pocket1.Profile = sketch3
pocket1.Length = 3
pocket1.Reversed = True
doc.recompute()

fillet = body.newObject("PartDesign::Fillet", "Fillet")
fillet.Base = (pocket1, edges_at(pocket1, [(50.699, -54.558, -8), (70.699, -54.558, -8)]))
fillet.Radius = 2

# Sketch on XY plane
sketch4 = body.newObject("Sketcher::SketchObject", "Sketch003")
sketch4.AttachmentSupport = (doc.getObject("XY_Plane"), [""])
sketch4.MapMode = "FlatFace"
sketch4.AttachmentOffset = App.Placement(App.Vector(0, 0, 3), App.Rotation())
sketch4.addGeometry(Part.Circle(App.Vector(18.7, -21.7, 0), App.Vector(0, 0, 1), 1.5), False)
sketch4.addGeometry(Part.Circle(App.Vector(18.7, -49, 0), App.Vector(0, 0, 1), 1.5), False)
sketch4.addGeometry(Part.Circle(App.Vector(102.8, -49, 0), App.Vector(0, 0, 1), 1.5), False)
sketch4.addGeometry(Part.Circle(App.Vector(102.8, -21.7, 0), App.Vector(0, 0, 1), 1.5), False)
sketch4.addConstraint(Sketcher.Constraint("Equal", 0, 1))
sketch4.addConstraint(Sketcher.Constraint("Equal", 1, 2))
sketch4.addConstraint(Sketcher.Constraint("Equal", 2, 3))
sketch4.addConstraint(Sketcher.Constraint("Horizontal", 1, 3, 2, 3))
sketch4.addConstraint(Sketcher.Constraint("Horizontal", 0, 3, 3, 3))
sketch4.addConstraint(Sketcher.Constraint("Vertical", 0, 3, 1, 3))
sketch4.addConstraint(Sketcher.Constraint("Vertical", 2, 3, 3, 3))
sketch4.addConstraint(Sketcher.Constraint("Diameter", 0, Q("3 mm")))
sketch4.addConstraint(Sketcher.Constraint("DistanceY", 1, 3, 0, 3, Q("27.3 mm")))
sketch4.addConstraint(Sketcher.Constraint("DistanceX", -1, 1, 0, 3, Q("18.655279 mm")))
sketch4.addConstraint(Sketcher.Constraint("DistanceX", -1, 1, 2, 3, Q("102.79896 mm")))
sketch4.addConstraint(Sketcher.Constraint("DistanceY", 0, 3, -1, 1, Q("21.720997 mm")))
pocket2 = body.newObject("PartDesign::Pocket", "Pocket001")
pocket2.Profile = sketch4
pocket2.Length = 1

# Sketch on XZ plane
sketch5 = body.newObject("Sketcher::SketchObject", "Sketch004")
sketch5.AttachmentSupport = (doc.getObject("XZ_Plane"), [""])
sketch5.MapMode = "FlatFace"
sketch5.AttachmentOffset = App.Placement(App.Vector(0, 0, 53.057976), App.Rotation())
sketch5.addGeometry(Part.Circle(App.Vector(54.7, -3.5, 0), App.Vector(0, 0, 1), 2.2), False)
sketch5.addGeometry(Part.Circle(App.Vector(66.7, -3.5, 0), App.Vector(0, 0, 1), 2.2), False)
sketch5.addConstraint(Sketcher.Constraint("Equal", 0, 1))
sketch5.addConstraint(Sketcher.Constraint("Horizontal", 0, 3, 1, 3))
sketch5.addConstraint(Sketcher.Constraint("Diameter", 0, Q("4.5 mm")))
sketch5.addConstraint(Sketcher.Constraint("DistanceX", 0, 3, 1, 3, Q("12 mm")))
sketch5.addConstraint(Sketcher.Constraint("DistanceY", 0, 3, -1, 1, Q("3.5 mm")))
sketch5.addConstraint(Sketcher.Constraint("DistanceX", -1, 1, 0, 3, Q("54.69896 mm")))
pocket3 = body.newObject("PartDesign::Pocket", "Pocket002")
pocket3.Profile = sketch5
pocket3.Length = 1
pocket3.Reversed = True

doc.recompute()
